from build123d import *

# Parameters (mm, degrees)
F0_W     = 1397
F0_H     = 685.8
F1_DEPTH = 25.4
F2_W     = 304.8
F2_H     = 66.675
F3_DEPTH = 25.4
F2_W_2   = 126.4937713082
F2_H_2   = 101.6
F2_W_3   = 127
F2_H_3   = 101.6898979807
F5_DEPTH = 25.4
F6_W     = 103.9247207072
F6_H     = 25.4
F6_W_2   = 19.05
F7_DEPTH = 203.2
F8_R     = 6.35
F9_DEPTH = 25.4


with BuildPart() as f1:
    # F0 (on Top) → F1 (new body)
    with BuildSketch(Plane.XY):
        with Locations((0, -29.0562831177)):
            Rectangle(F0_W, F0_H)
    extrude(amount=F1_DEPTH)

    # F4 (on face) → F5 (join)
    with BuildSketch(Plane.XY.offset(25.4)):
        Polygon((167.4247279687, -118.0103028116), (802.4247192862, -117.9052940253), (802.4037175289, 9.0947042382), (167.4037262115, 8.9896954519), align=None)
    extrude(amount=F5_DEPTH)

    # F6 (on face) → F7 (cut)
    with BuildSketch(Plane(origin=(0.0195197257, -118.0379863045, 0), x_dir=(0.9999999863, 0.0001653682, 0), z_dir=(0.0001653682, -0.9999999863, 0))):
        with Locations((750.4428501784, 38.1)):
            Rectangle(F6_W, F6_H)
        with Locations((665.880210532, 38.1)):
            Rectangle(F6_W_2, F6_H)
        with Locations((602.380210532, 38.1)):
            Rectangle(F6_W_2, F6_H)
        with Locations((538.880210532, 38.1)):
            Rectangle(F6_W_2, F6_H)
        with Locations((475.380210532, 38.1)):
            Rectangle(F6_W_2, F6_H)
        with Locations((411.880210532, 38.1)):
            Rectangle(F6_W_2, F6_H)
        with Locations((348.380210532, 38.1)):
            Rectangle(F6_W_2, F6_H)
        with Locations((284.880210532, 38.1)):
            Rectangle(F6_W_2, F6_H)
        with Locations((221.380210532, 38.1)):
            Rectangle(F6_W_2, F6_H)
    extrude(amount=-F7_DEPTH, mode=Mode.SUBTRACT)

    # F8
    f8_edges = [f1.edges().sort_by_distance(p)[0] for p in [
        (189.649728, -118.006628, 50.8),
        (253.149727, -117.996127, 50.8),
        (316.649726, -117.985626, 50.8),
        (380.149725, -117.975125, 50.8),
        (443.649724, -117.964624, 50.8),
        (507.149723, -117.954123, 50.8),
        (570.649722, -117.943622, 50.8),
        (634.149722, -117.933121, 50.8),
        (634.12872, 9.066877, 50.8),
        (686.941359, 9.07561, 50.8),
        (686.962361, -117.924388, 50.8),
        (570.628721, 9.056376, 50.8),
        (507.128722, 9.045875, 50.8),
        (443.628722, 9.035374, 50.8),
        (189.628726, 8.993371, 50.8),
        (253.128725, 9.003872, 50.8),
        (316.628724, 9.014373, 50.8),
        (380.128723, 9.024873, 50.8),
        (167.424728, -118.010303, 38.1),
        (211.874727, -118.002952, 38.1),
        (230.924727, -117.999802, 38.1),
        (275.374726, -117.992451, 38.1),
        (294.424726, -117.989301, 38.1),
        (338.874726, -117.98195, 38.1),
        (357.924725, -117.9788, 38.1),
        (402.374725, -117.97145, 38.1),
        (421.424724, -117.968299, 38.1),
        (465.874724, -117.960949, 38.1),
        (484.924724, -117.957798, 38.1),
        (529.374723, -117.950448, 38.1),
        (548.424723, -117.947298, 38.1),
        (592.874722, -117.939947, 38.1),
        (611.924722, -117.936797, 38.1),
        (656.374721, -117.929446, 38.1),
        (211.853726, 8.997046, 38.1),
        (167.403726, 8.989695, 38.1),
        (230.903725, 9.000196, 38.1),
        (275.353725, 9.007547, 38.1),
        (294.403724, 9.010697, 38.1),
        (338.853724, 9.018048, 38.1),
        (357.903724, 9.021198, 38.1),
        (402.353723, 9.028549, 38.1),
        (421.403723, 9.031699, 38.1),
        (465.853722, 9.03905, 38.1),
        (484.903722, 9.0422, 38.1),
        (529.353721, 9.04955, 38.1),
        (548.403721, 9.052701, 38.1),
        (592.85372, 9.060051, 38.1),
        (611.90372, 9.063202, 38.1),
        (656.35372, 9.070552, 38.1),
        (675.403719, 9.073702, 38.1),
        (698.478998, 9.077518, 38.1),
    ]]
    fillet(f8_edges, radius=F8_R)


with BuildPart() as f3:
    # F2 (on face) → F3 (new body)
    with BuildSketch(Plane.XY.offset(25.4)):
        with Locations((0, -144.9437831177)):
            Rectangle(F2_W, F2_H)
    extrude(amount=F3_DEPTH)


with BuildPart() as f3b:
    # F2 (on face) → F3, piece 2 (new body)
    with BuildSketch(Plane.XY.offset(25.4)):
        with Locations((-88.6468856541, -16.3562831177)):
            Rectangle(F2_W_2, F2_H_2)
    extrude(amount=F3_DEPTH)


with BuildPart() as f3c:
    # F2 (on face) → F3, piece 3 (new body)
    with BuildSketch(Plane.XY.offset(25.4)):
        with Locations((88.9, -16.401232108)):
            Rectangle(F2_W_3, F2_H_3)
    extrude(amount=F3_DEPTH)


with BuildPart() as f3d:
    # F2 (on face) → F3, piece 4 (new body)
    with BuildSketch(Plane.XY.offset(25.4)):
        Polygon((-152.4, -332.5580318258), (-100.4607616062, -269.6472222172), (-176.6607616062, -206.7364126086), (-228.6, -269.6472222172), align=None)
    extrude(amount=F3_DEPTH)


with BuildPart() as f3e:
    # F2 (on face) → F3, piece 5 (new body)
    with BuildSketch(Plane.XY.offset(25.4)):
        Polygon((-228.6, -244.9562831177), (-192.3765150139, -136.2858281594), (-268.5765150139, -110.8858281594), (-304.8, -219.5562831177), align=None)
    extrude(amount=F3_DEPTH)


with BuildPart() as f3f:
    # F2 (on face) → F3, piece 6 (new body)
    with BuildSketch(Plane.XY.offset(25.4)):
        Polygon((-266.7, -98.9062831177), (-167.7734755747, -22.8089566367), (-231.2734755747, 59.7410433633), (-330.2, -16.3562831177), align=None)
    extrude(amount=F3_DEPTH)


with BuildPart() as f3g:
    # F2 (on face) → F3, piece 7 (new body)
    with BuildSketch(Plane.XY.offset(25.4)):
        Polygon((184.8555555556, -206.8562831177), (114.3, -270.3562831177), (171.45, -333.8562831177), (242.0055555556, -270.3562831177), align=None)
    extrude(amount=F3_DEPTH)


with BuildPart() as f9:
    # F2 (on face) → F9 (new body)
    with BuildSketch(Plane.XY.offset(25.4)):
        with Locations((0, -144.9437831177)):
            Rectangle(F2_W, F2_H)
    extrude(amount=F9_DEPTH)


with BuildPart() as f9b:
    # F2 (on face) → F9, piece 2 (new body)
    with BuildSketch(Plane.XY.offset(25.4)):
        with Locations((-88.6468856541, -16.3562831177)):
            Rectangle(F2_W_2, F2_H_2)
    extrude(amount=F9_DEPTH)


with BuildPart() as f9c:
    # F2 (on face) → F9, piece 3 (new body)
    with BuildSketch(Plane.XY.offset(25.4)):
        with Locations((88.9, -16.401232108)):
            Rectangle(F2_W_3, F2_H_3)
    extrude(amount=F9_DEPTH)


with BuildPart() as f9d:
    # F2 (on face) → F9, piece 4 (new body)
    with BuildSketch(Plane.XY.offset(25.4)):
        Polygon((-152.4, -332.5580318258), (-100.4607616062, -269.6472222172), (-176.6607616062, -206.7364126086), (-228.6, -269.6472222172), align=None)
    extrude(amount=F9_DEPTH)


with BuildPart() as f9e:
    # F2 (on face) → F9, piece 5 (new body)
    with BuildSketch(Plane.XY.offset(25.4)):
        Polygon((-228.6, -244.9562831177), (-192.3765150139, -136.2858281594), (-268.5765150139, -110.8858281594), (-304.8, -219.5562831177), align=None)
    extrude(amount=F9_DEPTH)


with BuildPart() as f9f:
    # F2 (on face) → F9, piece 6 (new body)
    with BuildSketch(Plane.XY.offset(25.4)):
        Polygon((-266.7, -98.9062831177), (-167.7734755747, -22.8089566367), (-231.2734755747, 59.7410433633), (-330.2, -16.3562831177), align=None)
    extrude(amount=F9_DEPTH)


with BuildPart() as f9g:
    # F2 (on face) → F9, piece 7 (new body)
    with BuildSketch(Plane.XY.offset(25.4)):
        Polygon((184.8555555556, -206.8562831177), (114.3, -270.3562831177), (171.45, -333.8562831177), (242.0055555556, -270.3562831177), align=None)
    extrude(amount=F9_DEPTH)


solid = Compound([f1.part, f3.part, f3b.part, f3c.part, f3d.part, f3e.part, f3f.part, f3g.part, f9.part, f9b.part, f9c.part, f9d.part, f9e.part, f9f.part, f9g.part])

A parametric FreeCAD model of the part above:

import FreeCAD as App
import Part
import Sketcher

V = App.Vector
Q = App.Units.Quantity


def edges_at(feature, points):
    """Names of the edges that pass closest to the given points."""
    edges = feature.Shape.Edges
    near = lambda p: min(range(len(edges)), key=lambda i: edges[i].distToShape(Part.Vertex(*p))[0])
    return sorted({f"Edge{near(p) + 1}" for p in points})

doc = App.newDocument("Part")
body = doc.addObject("PartDesign::Body", "Body")

sketch1 = body.newObject("Sketcher::SketchObject", "Sketch")
sketch1.AttachmentSupport = (doc.getObject("XY_Plane"), [""])
sketch1.MapMode = "FlatFace"
sketch1.addGeometry(Part.LineSegment(V(-698.5, 313.843717, 0), V(-698.5, -371.956283, 0)), False)
sketch1.addGeometry(Part.LineSegment(V(-698.5, -371.956283, 0), V(698.5, -371.956283, 0)), False)
sketch1.addGeometry(Part.LineSegment(V(698.5, -371.956283, 0), V(698.5, 313.843717, 0)), False)
sketch1.addGeometry(Part.LineSegment(V(698.5, 313.843717, 0), V(-698.5, 313.843717, 0)), False)
sketch1.addConstraint(Sketcher.Constraint("Coincident", 0, 2, 1, 1))
sketch1.addConstraint(Sketcher.Constraint("Coincident", 1, 2, 2, 1))
sketch1.addConstraint(Sketcher.Constraint("Coincident", 2, 2, 3, 1))
sketch1.addConstraint(Sketcher.Constraint("Coincident", 3, 2, 0, 1))
sketch1.addConstraint(Sketcher.Constraint("Vertical", 0))
sketch1.addConstraint(Sketcher.Constraint("Horizontal", 1))
sketch1.addConstraint(Sketcher.Constraint("Vertical", 2))
sketch1.addConstraint(Sketcher.Constraint("Horizontal", 3))
sketch1.addConstraint(Sketcher.Constraint("DistanceX", 1, 1, 1, 2, Q("55 in")))
sketch1.addConstraint(Sketcher.Constraint("DistanceY", 0, 2, 0, 1, Q("27 in")))
sketch1.addConstraint(Sketcher.Constraint("DistanceX", 0, 2, -1, 1, Q("27.5 in")))
sketch1.addConstraint(Sketcher.Constraint("DistanceY", 0, 2, -1, 1, Q("371.956283 mm")))
pad1 = body.newObject("PartDesign::Pad", "Pad")
pad1.Profile = sketch1
pad1.Length = Q("1 in")

sketch2 = body.newObject("Sketcher::SketchObject", "Sketch001")
sketch2.AttachmentSupport = (doc.getObject("XY_Plane"), [""])
sketch2.MapMode = "FlatFace"
sketch2.AttachmentOffset = App.Placement(V(0, 0, 1 * 25.4), App.Rotation())
sketch2.addGeometry(Part.LineSegment(V(167.424728, -118.010303, 0), V(802.424719, -117.905294, 0)), False)
sketch2.addGeometry(Part.LineSegment(V(802.424719, -117.905294, 0), V(802.403718, 9.094704, 0)), False)
sketch2.addGeometry(Part.LineSegment(V(802.403718, 9.094704, 0), V(167.403726, 8.989695, 0)), False)
sketch2.addGeometry(Part.LineSegment(V(167.403726, 8.989695, 0), V(167.424728, -118.010303, 0)), False)
sketch2.addConstraint(Sketcher.Constraint("Coincident", 0, 2, 1, 1))
sketch2.addConstraint(Sketcher.Constraint("Coincident", 1, 2, 2, 1))
sketch2.addConstraint(Sketcher.Constraint("Coincident", 2, 2, 3, 1))
sketch2.addConstraint(Sketcher.Constraint("Coincident", 3, 2, 0, 1))
sketch2.addConstraint(Sketcher.Constraint("Perpendicular", 0, 1))
sketch2.addConstraint(Sketcher.Constraint("Perpendicular", 1, 2))
sketch2.addConstraint(Sketcher.Constraint("Perpendicular", 2, 3))
sketch2.addConstraint(Sketcher.Constraint("Distance", 0, Q("25 in")))
sketch2.addConstraint(Sketcher.Constraint("Distance", 1, Q("5 in")))
sketch2.addConstraint(Sketcher.Constraint("DistanceX", 1, 2, 0, 2, Q("0.021002 mm")))
sketch2.addConstraint(Sketcher.Constraint("DistanceX", -1, 1, 0, 2, Q("802.424719 mm")))
sketch2.addConstraint(Sketcher.Constraint("DistanceY", 0, 2, -1, 1, Q("117.905294 mm")))
pad2 = body.newObject("PartDesign::Pad", "Pad001")
pad2.Profile = sketch2
pad2.Length = Q("1 in")

sketch3 = body.newObject("Sketcher::SketchObject", "Sketch002")
sketch3.Placement = App.Placement(V(0.01952, -118.037986, 0), App.Rotation(V(0.999999986, 0.000165368, 0), V(0, 0, 0.999999999), V(0.000165368, -0.999999986, 0), "ZXY"))
sketch3.addGeometry(Part.LineSegment(V(698.480489, 50.8, 0), V(698.480489, 25.4, 0)), False)
sketch3.addGeometry(Part.LineSegment(V(698.480489, 25.4, 0), V(802.40521, 25.4, 0)), False)
sketch3.addGeometry(Part.LineSegment(V(802.40521, 25.4, 0), V(802.40521, 50.8, 0)), False)
sketch3.addGeometry(Part.LineSegment(V(802.40521, 50.8, 0), V(698.480489, 50.8, 0)), False)
sketch3.addGeometry(Part.LineSegment(V(656.35521, 50.8, 0), V(656.35521, 25.4, 0)), False)
sketch3.addGeometry(Part.LineSegment(V(656.35521, 25.4, 0), V(675.40521, 25.4, 0)), False)
sketch3.addGeometry(Part.LineSegment(V(675.40521, 25.4, 0), V(675.40521, 50.8, 0)), False)
sketch3.addGeometry(Part.LineSegment(V(675.40521, 50.8, 0), V(656.35521, 50.8, 0)), False)
sketch3.addGeometry(Part.LineSegment(V(592.85521, 50.8, 0), V(592.85521, 25.4, 0)), False)
sketch3.addGeometry(Part.LineSegment(V(592.85521, 25.4, 0), V(611.90521, 25.4, 0)), False)
sketch3.addGeometry(Part.LineSegment(V(611.90521, 25.4, 0), V(611.90521, 50.8, 0)), False)
sketch3.addGeometry(Part.LineSegment(V(611.90521, 50.8, 0), V(592.85521, 50.8, 0)), False)
sketch3.addGeometry(Part.LineSegment(V(529.35521, 50.8, 0), V(529.35521, 25.4, 0)), False)
sketch3.addGeometry(Part.LineSegment(V(529.35521, 25.4, 0), V(548.40521, 25.4, 0)), False)
sketch3.addGeometry(Part.LineSegment(V(548.40521, 25.4, 0), V(548.40521, 50.8, 0)), False)
sketch3.addGeometry(Part.LineSegment(V(548.40521, 50.8, 0), V(529.35521, 50.8, 0)), False)
sketch3.addGeometry(Part.LineSegment(V(465.85521, 50.8, 0), V(465.85521, 25.4, 0)), False)
sketch3.addGeometry(Part.LineSegment(V(465.85521, 25.4, 0), V(484.90521, 25.4, 0)), False)
sketch3.addGeometry(Part.LineSegment(V(484.90521, 25.4, 0), V(484.90521, 50.8, 0)), False)
sketch3.addGeometry(Part.LineSegment(V(484.90521, 50.8, 0), V(465.85521, 50.8, 0)), False)
sketch3.addGeometry(Part.LineSegment(V(402.35521, 50.8, 0), V(402.35521, 25.4, 0)), False)
sketch3.addGeometry(Part.LineSegment(V(402.35521, 25.4, 0), V(421.40521, 25.4, 0)), False)
sketch3.addGeometry(Part.LineSegment(V(421.40521, 25.4, 0), V(421.40521, 50.8, 0)), False)
sketch3.addGeometry(Part.LineSegment(V(421.40521, 50.8, 0), V(402.35521, 50.8, 0)), False)
sketch3.addGeometry(Part.LineSegment(V(338.85521, 50.8, 0), V(338.85521, 25.4, 0)), False)
sketch3.addGeometry(Part.LineSegment(V(338.85521, 25.4, 0), V(357.90521, 25.4, 0)), False)
sketch3.addGeometry(Part.LineSegment(V(357.90521, 25.4, 0), V(357.90521, 50.8, 0)), False)
sketch3.addGeometry(Part.LineSegment(V(357.90521, 50.8, 0), V(338.85521, 50.8, 0)), False)
sketch3.addGeometry(Part.LineSegment(V(275.35521, 50.8, 0), V(275.35521, 25.4, 0)), False)
sketch3.addGeometry(Part.LineSegment(V(275.35521, 25.4, 0), V(294.40521, 25.4, 0)), False)
sketch3.addGeometry(Part.LineSegment(V(294.40521, 25.4, 0), V(294.40521, 50.8, 0)), False)
sketch3.addGeometry(Part.LineSegment(V(294.40521, 50.8, 0), V(275.35521, 50.8, 0)), False)
sketch3.addGeometry(Part.LineSegment(V(211.85521, 50.8, 0), V(211.85521, 25.4, 0)), False)
sketch3.addGeometry(Part.LineSegment(V(211.85521, 25.4, 0), V(230.90521, 25.4, 0)), False)
sketch3.addGeometry(Part.LineSegment(V(230.90521, 25.4, 0), V(230.90521, 50.8, 0)), False)
sketch3.addGeometry(Part.LineSegment(V(230.90521, 50.8, 0), V(211.85521, 50.8, 0)), False)
sketch3.addConstraint(Sketcher.Constraint("Coincident", 0, 2, 1, 1))
sketch3.addConstraint(Sketcher.Constraint("Coincident", 1, 2, 2, 1))
sketch3.addConstraint(Sketcher.Constraint("Coincident", 2, 2, 3, 1))
sketch3.addConstraint(Sketcher.Constraint("Coincident", 3, 2, 0, 1))
sketch3.addConstraint(Sketcher.Constraint("Coincident", 4, 2, 5, 1))
sketch3.addConstraint(Sketcher.Constraint("Coincident", 5, 2, 6, 1))
sketch3.addConstraint(Sketcher.Constraint("Coincident", 6, 2, 7, 1))
sketch3.addConstraint(Sketcher.Constraint("Coincident", 7, 2, 4, 1))
sketch3.addConstraint(Sketcher.Constraint("Coincident", 8, 2, 9, 1))
sketch3.addConstraint(Sketcher.Constraint("Coincident", 9, 2, 10, 1))
sketch3.addConstraint(Sketcher.Constraint("Coincident", 10, 2, 11, 1))
sketch3.addConstraint(Sketcher.Constraint("Coincident", 11, 2, 8, 1))
sketch3.addConstraint(Sketcher.Constraint("Coincident", 12, 2, 13, 1))
sketch3.addConstraint(Sketcher.Constraint("Coincident", 13, 2, 14, 1))
sketch3.addConstraint(Sketcher.Constraint("Coincident", 14, 2, 15, 1))
sketch3.addConstraint(Sketcher.Constraint("Coincident", 15, 2, 12, 1))
sketch3.addConstraint(Sketcher.Constraint("Coincident", 16, 2, 17, 1))
sketch3.addConstraint(Sketcher.Constraint("Coincident", 17, 2, 18, 1))
sketch3.addConstraint(Sketcher.Constraint("Coincident", 18, 2, 19, 1))
sketch3.addConstraint(Sketcher.Constraint("Coincident", 19, 2, 16, 1))
sketch3.addConstraint(Sketcher.Constraint("Coincident", 20, 2, 21, 1))
sketch3.addConstraint(Sketcher.Constraint("Coincident", 21, 2, 22, 1))
sketch3.addConstraint(Sketcher.Constraint("Coincident", 22, 2, 23, 1))
sketch3.addConstraint(Sketcher.Constraint("Coincident", 23, 2, 20, 1))
sketch3.addConstraint(Sketcher.Constraint("Coincident", 24, 2, 25, 1))
sketch3.addConstraint(Sketcher.Constraint("Coincident", 25, 2, 26, 1))
sketch3.addConstraint(Sketcher.Constraint("Coincident", 26, 2, 27, 1))
sketch3.addConstraint(Sketcher.Constraint("Coincident", 27, 2, 24, 1))
sketch3.addConstraint(Sketcher.Constraint("Coincident", 28, 2, 29, 1))
sketch3.addConstraint(Sketcher.Constraint("Coincident", 29, 2, 30, 1))
sketch3.addConstraint(Sketcher.Constraint("Coincident", 30, 2, 31, 1))
sketch3.addConstraint(Sketcher.Constraint("Coincident", 31, 2, 28, 1))
sketch3.addConstraint(Sketcher.Constraint("Coincident", 32, 2, 33, 1))
sketch3.addConstraint(Sketcher.Constraint("Coincident", 33, 2, 34, 1))
sketch3.addConstraint(Sketcher.Constraint("Coincident", 34, 2, 35, 1))
sketch3.addConstraint(Sketcher.Constraint("Coincident", 35, 2, 32, 1))
sketch3.addConstraint(Sketcher.Constraint("Vertical", 0))
sketch3.addConstraint(Sketcher.Constraint("Horizontal", 1))
sketch3.addConstraint(Sketcher.Constraint("Vertical", 2))
sketch3.addConstraint(Sketcher.Constraint("Horizontal", 3))
sketch3.addConstraint(Sketcher.Constraint("Vertical", 4))
sketch3.addConstraint(Sketcher.Constraint("Horizontal", 5))
sketch3.addConstraint(Sketcher.Constraint("Vertical", 6))
sketch3.addConstraint(Sketcher.Constraint("Horizontal", 7))
sketch3.addConstraint(Sketcher.Constraint("Vertical", 8))
sketch3.addConstraint(Sketcher.Constraint("Horizontal", 9))
sketch3.addConstraint(Sketcher.Constraint("Vertical", 10))
sketch3.addConstraint(Sketcher.Constraint("Horizontal", 11))
sketch3.addConstraint(Sketcher.Constraint("Vertical", 12))
sketch3.addConstraint(Sketcher.Constraint("Horizontal", 13))
sketch3.addConstraint(Sketcher.Constraint("Vertical", 14))
sketch3.addConstraint(Sketcher.Constraint("Horizontal", 15))
sketch3.addConstraint(Sketcher.Constraint("Vertical", 16))
sketch3.addConstraint(Sketcher.Constraint("Horizontal", 17))
sketch3.addConstraint(Sketcher.Constraint("Vertical", 18))
sketch3.addConstraint(Sketcher.Constraint("Horizontal", 19))
sketch3.addConstraint(Sketcher.Constraint("Vertical", 20))
sketch3.addConstraint(Sketcher.Constraint("Horizontal", 21))
sketch3.addConstraint(Sketcher.Constraint("Vertical", 22))
sketch3.addConstraint(Sketcher.Constraint("Horizontal", 23))
sketch3.addConstraint(Sketcher.Constraint("Vertical", 24))
sketch3.addConstraint(Sketcher.Constraint("Horizontal", 25))
sketch3.addConstraint(Sketcher.Constraint("Vertical", 26))
sketch3.addConstraint(Sketcher.Constraint("Horizontal", 27))
sketch3.addConstraint(Sketcher.Constraint("Vertical", 28))
sketch3.addConstraint(Sketcher.Constraint("Horizontal", 29))
sketch3.addConstraint(Sketcher.Constraint("Vertical", 30))
sketch3.addConstraint(Sketcher.Constraint("Horizontal", 31))
sketch3.addConstraint(Sketcher.Constraint("Vertical", 32))
sketch3.addConstraint(Sketcher.Constraint("Horizontal", 33))
sketch3.addConstraint(Sketcher.Constraint("Vertical", 34))
sketch3.addConstraint(Sketcher.Constraint("Horizontal", 35))
sketch3.addConstraint(Sketcher.Constraint("Horizontal", 1, 2, 4, 2))
sketch3.addConstraint(Sketcher.Constraint("Horizontal", 3, 2, 6, 2))
sketch3.addConstraint(Sketcher.Constraint("Horizontal", 5, 2, 8, 2))
sketch3.addConstraint(Sketcher.Constraint("Horizontal", 7, 2, 10, 2))
sketch3.addConstraint(Sketcher.Constraint("Horizontal", 9, 2, 12, 2))
sketch3.addConstraint(Sketcher.Constraint("Horizontal", 11, 2, 14, 2))
sketch3.addConstraint(Sketcher.Constraint("Horizontal", 13, 2, 16, 2))
sketch3.addConstraint(Sketcher.Constraint("Horizontal", 15, 2, 18, 2))
sketch3.addConstraint(Sketcher.Constraint("Horizontal", 17, 2, 20, 2))
sketch3.addConstraint(Sketcher.Constraint("Horizontal", 19, 2, 22, 2))
sketch3.addConstraint(Sketcher.Constraint("Horizontal", 21, 2, 24, 2))
sketch3.addConstraint(Sketcher.Constraint("Horizontal", 23, 2, 26, 2))
sketch3.addConstraint(Sketcher.Constraint("Horizontal", 25, 2, 28, 2))
sketch3.addConstraint(Sketcher.Constraint("Horizontal", 27, 2, 30, 2))
sketch3.addConstraint(Sketcher.Constraint("Horizontal", 29, 2, 32, 2))
sketch3.addConstraint(Sketcher.Constraint("Horizontal", 31, 2, 34, 2))
sketch3.addConstraint(Sketcher.Constraint("Equal", 7, 9))
sketch3.addConstraint(Sketcher.Constraint("Equal", 11, 13))
sketch3.addConstraint(Sketcher.Constraint("Equal", 15, 17))
sketch3.addConstraint(Sketcher.Constraint("Equal", 19, 21))
sketch3.addConstraint(Sketcher.Constraint("Equal", 23, 25))
sketch3.addConstraint(Sketcher.Constraint("Equal", 27, 29))
sketch3.addConstraint(Sketcher.Constraint("Equal", 31, 33))
sketch3.addConstraint(Sketcher.Constraint("DistanceY", 0, 2, 0, 1, Q("1 in")))
sketch3.addConstraint(Sketcher.Constraint("DistanceY", -1, 1, 0, 2, Q("1 in")))
sketch3.addConstraint(Sketcher.Constraint("DistanceX", 5, 2, 1, 2, Q("5 in")))
sketch3.addConstraint(Sketcher.Constraint("DistanceX", 12, 2, 4, 2, Q("5 in")))
sketch3.addConstraint(Sketcher.Constraint("DistanceX", 16, 2, 8, 2, Q("5 in")))
sketch3.addConstraint(Sketcher.Constraint("DistanceX", 20, 2, 12, 2, Q("5 in")))
sketch3.addConstraint(Sketcher.Constraint("DistanceX", 24, 2, 16, 2, Q("5 in")))
sketch3.addConstraint(Sketcher.Constraint("DistanceX", 28, 2, 20, 2, Q("5 in")))
sketch3.addConstraint(Sketcher.Constraint("DistanceX", 32, 2, 24, 2, Q("5 in")))
sketch3.addConstraint(Sketcher.Constraint("DistanceX", 5, 1, 5, 2, Q("0.75 in")))
sketch3.addConstraint(Sketcher.Constraint("DistanceX", 8, 2, 4, 2, Q("2.5 in")))
sketch3.addConstraint(Sketcher.Constraint("DistanceX", 1, 1, 1, 2, Q("103.924721 mm")))
sketch3.addConstraint(Sketcher.Constraint("DistanceX", -1, 1, 0, 2, Q("698.480489 mm")))
pocket1 = body.newObject("PartDesign::Pocket", "Pocket")
pocket1.Profile = sketch3
pocket1.Length = Q("8 in")
doc.recompute()

fillet = body.newObject("PartDesign::Fillet", "Fillet")
fillet.Base = (pocket1, edges_at(pocket1, [
    (189.65, -118.007, 50.8),
    (253.15, -117.996, 50.8),
    (316.65, -117.986, 50.8),
    (380.15, -117.975, 50.8),
    (443.65, -117.965, 50.8),
    (507.15, -117.954, 50.8),
    (570.65, -117.944, 50.8),
    (634.15, -117.933, 50.8),
    (634.129, 9.067, 50.8),
    (686.941, 9.076, 50.8),
    (686.962, -117.924, 50.8),
    (570.629, 9.056, 50.8),
    (507.129, 9.046, 50.8),
    (443.629, 9.035, 50.8),
    (189.629, 8.993, 50.8),
    (253.129, 9.004, 50.8),
    (316.629, 9.014, 50.8),
    (380.129, 9.025, 50.8),
    (167.425, -118.01, 38.1),
    (211.875, -118.003, 38.1),
    (230.925, -118, 38.1),
    (275.375, -117.992, 38.1),
    (294.425, -117.989, 38.1),
    (338.875, -117.982, 38.1),
    (357.925, -117.979, 38.1),
    (402.375, -117.971, 38.1),
    (421.425, -117.968, 38.1),
    (465.875, -117.961, 38.1),
    (484.925, -117.958, 38.1),
    (529.375, -117.95, 38.1),
    (548.425, -117.947, 38.1),
    (592.875, -117.94, 38.1),
    (611.925, -117.937, 38.1),
    (656.375, -117.929, 38.1),
    (211.854, 8.997, 38.1),
    (167.404, 8.99, 38.1),
    (230.904, 9, 38.1),
    (275.354, 9.008, 38.1),
    (294.404, 9.011, 38.1),
    (338.854, 9.018, 38.1),
    (357.904, 9.021, 38.1),
    (402.354, 9.029, 38.1),
    (421.404, 9.032, 38.1),
    (465.854, 9.039, 38.1),
    (484.904, 9.042, 38.1),
    (529.354, 9.05, 38.1),
    (548.404, 9.053, 38.1),
    (592.854, 9.06, 38.1),
    (611.904, 9.063, 38.1),
    (656.354, 9.071, 38.1),
    (675.404, 9.074, 38.1),
    (698.479, 9.078, 38.1),
]))
fillet.Radius = Q("0.25 in")
body2 = doc.addObject("PartDesign::Body", "Body001")

sketch4 = body2.newObject("Sketcher::SketchObject", "Sketch003")
sketch4.AttachmentSupport = (doc.getObject("XY_Plane001"), [""])
sketch4.MapMode = "FlatFace"
sketch4.AttachmentOffset = App.Placement(V(0, 0, 1 * 25.4), App.Rotation())
sketch4.addGeometry(Part.LineSegment(V(-152.4, -111.606283, 0), V(-152.4, -178.281283, 0)), False)
sketch4.addGeometry(Part.LineSegment(V(-152.4, -178.281283, 0), V(152.4, -178.281283, 0)), False)
sketch4.addGeometry(Part.LineSegment(V(152.4, -178.281283, 0), V(152.4, -111.606283, 0)), False)
sketch4.addGeometry(Part.LineSegment(V(152.4, -111.606283, 0), V(-152.4, -111.606283, 0)), False)
sketch4.addConstraint(Sketcher.Constraint("Coincident", 0, 2, 1, 1))
sketch4.addConstraint(Sketcher.Constraint("Coincident", 1, 2, 2, 1))
sketch4.addConstraint(Sketcher.Constraint("Coincident", 2, 2, 3, 1))
sketch4.addConstraint(Sketcher.Constraint("Coincident", 3, 2, 0, 1))
sketch4.addConstraint(Sketcher.Constraint("Vertical", 0))
sketch4.addConstraint(Sketcher.Constraint("Horizontal", 1))
sketch4.addConstraint(Sketcher.Constraint("Vertical", 2))
sketch4.addConstraint(Sketcher.Constraint("Horizontal", 3))
sketch4.addConstraint(Sketcher.Constraint("DistanceX", 1, 1, 1, 2, Q("12 in")))
sketch4.addConstraint(Sketcher.Constraint("DistanceX", 0, 2, -1, 1, Q("6 in")))
sketch4.addConstraint(Sketcher.Constraint("DistanceY", 0, 2, 0, 1, Q("2.625 in")))
sketch4.addConstraint(Sketcher.Constraint("DistanceY", 0, 2, -1, 1, Q("178.281283 mm")))
pad3 = body2.newObject("PartDesign::Pad", "Pad002")
pad3.Profile = sketch4
pad3.Length = Q("1 in")
body3 = doc.addObject("PartDesign::Body", "Body002")

sketch5 = body3.newObject("Sketcher::SketchObject", "Sketch004")
sketch5.AttachmentSupport = (doc.getObject("XY_Plane002"), [""])
sketch5.MapMode = "FlatFace"
sketch5.AttachmentOffset = App.Placement(V(0, 0, 1 * 25.4), App.Rotation())
sketch5.addGeometry(Part.LineSegment(V(-151.893771, 34.443717, 0), V(-151.893771, -67.156283, 0)), False)
sketch5.addGeometry(Part.LineSegment(V(-151.893771, -67.156283, 0), V(-25.4, -67.156283, 0)), False)
sketch5.addGeometry(Part.LineSegment(V(-25.4, -67.156283, 0), V(-25.4, 34.443717, 0)), False)
sketch5.addGeometry(Part.LineSegment(V(-25.4, 34.443717, 0), V(-151.893771, 34.443717, 0)), False)
sketch5.addConstraint(Sketcher.Constraint("Coincident", 0, 2, 1, 1))
sketch5.addConstraint(Sketcher.Constraint("Coincident", 1, 2, 2, 1))
sketch5.addConstraint(Sketcher.Constraint("Coincident", 2, 2, 3, 1))
sketch5.addConstraint(Sketcher.Constraint("Coincident", 3, 2, 0, 1))
sketch5.addConstraint(Sketcher.Constraint("Vertical", 0))
sketch5.addConstraint(Sketcher.Constraint("Horizontal", 1))
sketch5.addConstraint(Sketcher.Constraint("Vertical", 2))
sketch5.addConstraint(Sketcher.Constraint("Horizontal", 3))
sketch5.addConstraint(Sketcher.Constraint("DistanceY", 0, 2, 0, 1, Q("4 in")))
sketch5.addConstraint(Sketcher.Constraint("DistanceX", 1, 2, -1, 1, Q("1 in")))
sketch5.addConstraint(Sketcher.Constraint("DistanceX", 1, 1, 1, 2, Q("126.493771 mm")))
sketch5.addConstraint(Sketcher.Constraint("DistanceY", 0, 2, -1, 1, Q("67.156283 mm")))
pad4 = body3.newObject("PartDesign::Pad", "Pad003")
pad4.Profile = sketch5
pad4.Length = Q("1 in")
body4 = doc.addObject("PartDesign::Body", "Body003")

sketch6 = body4.newObject("Sketcher::SketchObject", "Sketch005")
sketch6.AttachmentSupport = (doc.getObject("XY_Plane003"), [""])
sketch6.MapMode = "FlatFace"
sketch6.AttachmentOffset = App.Placement(V(0, 0, 1 * 25.4), App.Rotation())
sketch6.addGeometry(Part.LineSegment(V(25.4, 34.443717, 0), V(25.4, -67.246181, 0)), False)
sketch6.addGeometry(Part.LineSegment(V(25.4, -67.246181, 0), V(152.4, -67.246181, 0)), False)
sketch6.addGeometry(Part.LineSegment(V(152.4, -67.246181, 0), V(152.4, 34.443717, 0)), False)
sketch6.addGeometry(Part.LineSegment(V(152.4, 34.443717, 0), V(25.4, 34.443717, 0)), False)
sketch6.addConstraint(Sketcher.Constraint("Coincident", 0, 2, 1, 1))
sketch6.addConstraint(Sketcher.Constraint("Coincident", 1, 2, 2, 1))
sketch6.addConstraint(Sketcher.Constraint("Coincident", 2, 2, 3, 1))
sketch6.addConstraint(Sketcher.Constraint("Coincident", 3, 2, 0, 1))
sketch6.addConstraint(Sketcher.Constraint("Vertical", 0))
sketch6.addConstraint(Sketcher.Constraint("Horizontal", 1))
sketch6.addConstraint(Sketcher.Constraint("Vertical", 2))
sketch6.addConstraint(Sketcher.Constraint("Horizontal", 3))
sketch6.addConstraint(Sketcher.Constraint("DistanceX", 1, 1, 1, 2, Q("5 in")))
sketch6.addConstraint(Sketcher.Constraint("DistanceX", -1, 1, 0, 2, Q("1 in")))
sketch6.addConstraint(Sketcher.Constraint("DistanceY", 0, 2, 0, 1, Q("101.689898 mm")))
sketch6.addConstraint(Sketcher.Constraint("DistanceY", 0, 2, -1, 1, Q("67.246181 mm")))
pad5 = body4.newObject("PartDesign::Pad", "Pad004")
pad5.Profile = sketch6
pad5.Length = Q("1 in")
body5 = doc.addObject("PartDesign::Body", "Body004")

sketch7 = body5.newObject("Sketcher::SketchObject", "Sketch006")
sketch7.AttachmentSupport = (doc.getObject("XY_Plane004"), [""])
sketch7.MapMode = "FlatFace"
sketch7.AttachmentOffset = App.Placement(V(0, 0, 1 * 25.4), App.Rotation())
sketch7.addGeometry(Part.LineSegment(V(-152.4, -332.558032, 0), V(-100.460762, -269.647222, 0)), False)
sketch7.addGeometry(Part.LineSegment(V(-100.460762, -269.647222, 0), V(-176.660762, -206.736413, 0)), False)
sketch7.addGeometry(Part.LineSegment(V(-176.660762, -206.736413, 0), V(-228.6, -269.647222, 0)), False)
sketch7.addGeometry(Part.LineSegment(V(-228.6, -269.647222, 0), V(-152.4, -332.558032, 0)), False)
sketch7.addConstraint(Sketcher.Constraint("Coincident", 0, 2, 1, 1))
sketch7.addConstraint(Sketcher.Constraint("Coincident", 1, 2, 2, 1))
sketch7.addConstraint(Sketcher.Constraint("Coincident", 2, 2, 3, 1))
sketch7.addConstraint(Sketcher.Constraint("Coincident", 3, 2, 0, 1))
sketch7.addConstraint(Sketcher.Constraint("Perpendicular", 0, 1))
sketch7.addConstraint(Sketcher.Constraint("Perpendicular", 1, 2))
sketch7.addConstraint(Sketcher.Constraint("Perpendicular", 2, 3))
sketch7.addConstraint(Sketcher.Constraint("Horizontal", 0, 2, 2, 2))
sketch7.addConstraint(Sketcher.Constraint("DistanceX", 2, 2, -1, 1, Q("9 in")))
sketch7.addConstraint(Sketcher.Constraint("DistanceX", 3, 2, -1, 1, Q("6 in")))
sketch7.addConstraint(Sketcher.Constraint("Distance", 0, Q("81.580969 mm")))
sketch7.addConstraint(Sketcher.Constraint("DistanceY", 3, 2, -1, 1, Q("332.558032 mm")))
pad6 = body5.newObject("PartDesign::Pad", "Pad005")
pad6.Profile = sketch7
pad6.Length = Q("1 in")
body6 = doc.addObject("PartDesign::Body", "Body005")

sketch8 = body6.newObject("Sketcher::SketchObject", "Sketch007")
sketch8.AttachmentSupport = (doc.getObject("XY_Plane005"), [""])
sketch8.MapMode = "FlatFace"
sketch8.AttachmentOffset = App.Placement(V(0, 0, 1 * 25.4), App.Rotation())
sketch8.addGeometry(Part.LineSegment(V(-228.6, -244.956283, 0), V(-192.376515, -136.285828, 0)), False)
sketch8.addGeometry(Part.LineSegment(V(-192.376515, -136.285828, 0), V(-268.576515, -110.885828, 0)), False)
sketch8.addGeometry(Part.LineSegment(V(-268.576515, -110.885828, 0), V(-304.8, -219.556283, 0)), False)
sketch8.addGeometry(Part.LineSegment(V(-304.8, -219.556283, 0), V(-228.6, -244.956283, 0)), False)
sketch8.addConstraint(Sketcher.Constraint("Coincident", 0, 2, 1, 1))
sketch8.addConstraint(Sketcher.Constraint("Coincident", 1, 2, 2, 1))
sketch8.addConstraint(Sketcher.Constraint("Coincident", 2, 2, 3, 1))
sketch8.addConstraint(Sketcher.Constraint("Coincident", 3, 2, 0, 1))
sketch8.addConstraint(Sketcher.Constraint("Perpendicular", 0, 1))
sketch8.addConstraint(Sketcher.Constraint("Perpendicular", 1, 2))
sketch8.addConstraint(Sketcher.Constraint("Perpendicular", 2, 3))
sketch8.addConstraint(Sketcher.Constraint("DistanceX", 2, 2, -1, 1, Q("12 in")))
sketch8.addConstraint(Sketcher.Constraint("DistanceX", 3, 2, -1, 1, Q("9 in")))
sketch8.addConstraint(Sketcher.Constraint("DistanceY", 0, 2, 1, 2, Q("1 in")))
sketch8.addConstraint(Sketcher.Constraint("DistanceY", 0, 2, -1, 1, Q("136.285828 mm")))
sketch8.addConstraint(Sketcher.Constraint("Distance", 0, Q("114.548717 mm")))
pad7 = body6.newObject("PartDesign::Pad", "Pad006")
pad7.Profile = sketch8
pad7.Length = Q("1 in")
body7 = doc.addObject("PartDesign::Body", "Body006")

sketch9 = body7.newObject("Sketcher::SketchObject", "Sketch008")
sketch9.AttachmentSupport = (doc.getObject("XY_Plane006"), [""])
sketch9.MapMode = "FlatFace"
sketch9.AttachmentOffset = App.Placement(V(0, 0, 1 * 25.4), App.Rotation())
sketch9.addGeometry(Part.LineSegment(V(-266.7, -98.906283, 0), V(-167.773476, -22.808957, 0)), False)
sketch9.addGeometry(Part.LineSegment(V(-167.773476, -22.808957, 0), V(-231.273476, 59.741043, 0)), False)
sketch9.addGeometry(Part.LineSegment(V(-231.273476, 59.741043, 0), V(-330.2, -16.356283, 0)), False)
sketch9.addGeometry(Part.LineSegment(V(-330.2, -16.356283, 0), V(-266.7, -98.906283, 0)), False)
sketch9.addConstraint(Sketcher.Constraint("Coincident", 0, 2, 1, 1))
sketch9.addConstraint(Sketcher.Constraint("Coincident", 1, 2, 2, 1))
sketch9.addConstraint(Sketcher.Constraint("Coincident", 2, 2, 3, 1))
sketch9.addConstraint(Sketcher.Constraint("Coincident", 3, 2, 0, 1))
sketch9.addConstraint(Sketcher.Constraint("Perpendicular", 0, 1))
sketch9.addConstraint(Sketcher.Constraint("Perpendicular", 1, 2))
sketch9.addConstraint(Sketcher.Constraint("Perpendicular", 2, 3))
sketch9.addConstraint(Sketcher.Constraint("DistanceX", 2, 2, -1, 1, Q("13 in")))
sketch9.addConstraint(Sketcher.Constraint("DistanceX", 3, 2, -1, 1, Q("10.5 in")))
sketch9.addConstraint(Sketcher.Constraint("DistanceY", 0, 2, 1, 2, Q("3.25 in")))
sketch9.addConstraint(Sketcher.Constraint("Distance", 0, Q("124.808895 mm")))
sketch9.addConstraint(Sketcher.Constraint("DistanceY", 0, 2, -1, 1, Q("22.808957 mm")))
pad8 = body7.newObject("PartDesign::Pad", "Pad007")
pad8.Profile = sketch9
pad8.Length = Q("1 in")
body8 = doc.addObject("PartDesign::Body", "Body007")

sketch10 = body8.newObject("Sketcher::SketchObject", "Sketch009")
sketch10.AttachmentSupport = (doc.getObject("XY_Plane007"), [""])
sketch10.MapMode = "FlatFace"
sketch10.AttachmentOffset = App.Placement(V(0, 0, 1 * 25.4), App.Rotation())
sketch10.addGeometry(Part.LineSegment(V(184.855556, -206.856283, 0), V(114.3, -270.356283, 0)), False)
sketch10.addGeometry(Part.LineSegment(V(114.3, -270.356283, 0), V(171.45, -333.856283, 0)), False)
sketch10.addGeometry(Part.LineSegment(V(171.45, -333.856283, 0), V(242.005556, -270.356283, 0)), False)
sketch10.addGeometry(Part.LineSegment(V(242.005556, -270.356283, 0), V(184.855556, -206.856283, 0)), False)
sketch10.addConstraint(Sketcher.Constraint("Coincident", 0, 2, 1, 1))
sketch10.addConstraint(Sketcher.Constraint("Coincident", 1, 2, 2, 1))
sketch10.addConstraint(Sketcher.Constraint("Coincident", 2, 2, 3, 1))
sketch10.addConstraint(Sketcher.Constraint("Coincident", 3, 2, 0, 1))
sketch10.addConstraint(Sketcher.Constraint("Perpendicular", 0, 1))
sketch10.addConstraint(Sketcher.Constraint("Perpendicular", 1, 2))
sketch10.addConstraint(Sketcher.Constraint("Perpendicular", 2, 3))
sketch10.addConstraint(Sketcher.Constraint("Horizontal", 0, 2, 2, 2))
sketch10.addConstraint(Sketcher.Constraint("DistanceY", 1, 2, 3, 2, Q("5 in")))
sketch10.addConstraint(Sketcher.Constraint("DistanceX", -1, 1, 0, 2, Q("4.5 in")))
sketch10.addConstraint(Sketcher.Constraint("DistanceX", -1, 1, 1, 2, Q("6.75 in")))
sketch10.addConstraint(Sketcher.Constraint("DistanceY", 0, 2, -1, 1, Q("270.356283 mm")))
pad9 = body8.newObject("PartDesign::Pad", "Pad008")
pad9.Profile = sketch10
pad9.Length = Q("1 in")
body9 = doc.addObject("PartDesign::Body", "Body008")

sketch11 = body9.newObject("Sketcher::SketchObject", "Sketch010")
sketch11.AttachmentSupport = (doc.getObject("XY_Plane008"), [""])
sketch11.MapMode = "FlatFace"
sketch11.AttachmentOffset = App.Placement(V(0, 0, 1 * 25.4), App.Rotation())
sketch11.addGeometry(Part.LineSegment(V(-152.4, -111.606283, 0), V(-152.4, -178.281283, 0)), False)
sketch11.addGeometry(Part.LineSegment(V(-152.4, -178.281283, 0), V(152.4, -178.281283, 0)), False)
sketch11.addGeometry(Part.LineSegment(V(152.4, -178.281283, 0), V(152.4, -111.606283, 0)), False)
sketch11.addGeometry(Part.LineSegment(V(152.4, -111.606283, 0), V(-152.4, -111.606283, 0)), False)
sketch11.addConstraint(Sketcher.Constraint("Coincident", 0, 2, 1, 1))
sketch11.addConstraint(Sketcher.Constraint("Coincident", 1, 2, 2, 1))
sketch11.addConstraint(Sketcher.Constraint("Coincident", 2, 2, 3, 1))
sketch11.addConstraint(Sketcher.Constraint("Coincident", 3, 2, 0, 1))
sketch11.addConstraint(Sketcher.Constraint("Vertical", 0))
sketch11.addConstraint(Sketcher.Constraint("Horizontal", 1))
sketch11.addConstraint(Sketcher.Constraint("Vertical", 2))
sketch11.addConstraint(Sketcher.Constraint("Horizontal", 3))
sketch11.addConstraint(Sketcher.Constraint("DistanceX", 1, 1, 1, 2, Q("12 in")))
sketch11.addConstraint(Sketcher.Constraint("DistanceX", 0, 2, -1, 1, Q("6 in")))
sketch11.addConstraint(Sketcher.Constraint("DistanceY", 0, 2, 0, 1, Q("2.625 in")))
sketch11.addConstraint(Sketcher.Constraint("DistanceY", 0, 2, -1, 1, Q("178.281283 mm")))
pad10 = body9.newObject("PartDesign::Pad", "Pad009")
pad10.Profile = sketch11
pad10.Length = Q("1 in")
body10 = doc.addObject("PartDesign::Body", "Body009")

sketch12 = body10.newObject("Sketcher::SketchObject", "Sketch011")
sketch12.AttachmentSupport = (doc.getObject("XY_Plane009"), [""])
sketch12.MapMode = "FlatFace"
sketch12.AttachmentOffset = App.Placement(V(0, 0, 1 * 25.4), App.Rotation())
sketch12.addGeometry(Part.LineSegment(V(-151.893771, 34.443717, 0), V(-151.893771, -67.156283, 0)), False)
sketch12.addGeometry(Part.LineSegment(V(-151.893771, -67.156283, 0), V(-25.4, -67.156283, 0)), False)
sketch12.addGeometry(Part.LineSegment(V(-25.4, -67.156283, 0), V(-25.4, 34.443717, 0)), False)
sketch12.addGeometry(Part.LineSegment(V(-25.4, 34.443717, 0), V(-151.893771, 34.443717, 0)), False)
sketch12.addConstraint(Sketcher.Constraint("Coincident", 0, 2, 1, 1))
sketch12.addConstraint(Sketcher.Constraint("Coincident", 1, 2, 2, 1))
sketch12.addConstraint(Sketcher.Constraint("Coincident", 2, 2, 3, 1))
sketch12.addConstraint(Sketcher.Constraint("Coincident", 3, 2, 0, 1))
sketch12.addConstraint(Sketcher.Constraint("Vertical", 0))
sketch12.addConstraint(Sketcher.Constraint("Horizontal", 1))
sketch12.addConstraint(Sketcher.Constraint("Vertical", 2))
sketch12.addConstraint(Sketcher.Constraint("Horizontal", 3))
sketch12.addConstraint(Sketcher.Constraint("DistanceY", 0, 2, 0, 1, Q("4 in")))
sketch12.addConstraint(Sketcher.Constraint("DistanceX", 1, 2, -1, 1, Q("1 in")))
sketch12.addConstraint(Sketcher.Constraint("DistanceX", 1, 1, 1, 2, Q("126.493771 mm")))
sketch12.addConstraint(Sketcher.Constraint("DistanceY", 0, 2, -1, 1, Q("67.156283 mm")))
pad11 = body10.newObject("PartDesign::Pad", "Pad010")
pad11.Profile = sketch12
pad11.Length = Q("1 in")
body11 = doc.addObject("PartDesign::Body", "Body010")

sketch13 = body11.newObject("Sketcher::SketchObject", "Sketch012")
sketch13.AttachmentSupport = (doc.getObject("XY_Plane010"), [""])
sketch13.MapMode = "FlatFace"
sketch13.AttachmentOffset = App.Placement(V(0, 0, 1 * 25.4), App.Rotation())
sketch13.addGeometry(Part.LineSegment(V(25.4, 34.443717, 0), V(25.4, -67.246181, 0)), False)
sketch13.addGeometry(Part.LineSegment(V(25.4, -67.246181, 0), V(152.4, -67.246181, 0)), False)
sketch13.addGeometry(Part.LineSegment(V(152.4, -67.246181, 0), V(152.4, 34.443717, 0)), False)
sketch13.addGeometry(Part.LineSegment(V(152.4, 34.443717, 0), V(25.4, 34.443717, 0)), False)
sketch13.addConstraint(Sketcher.Constraint("Coincident", 0, 2, 1, 1))
sketch13.addConstraint(Sketcher.Constraint("Coincident", 1, 2, 2, 1))
sketch13.addConstraint(Sketcher.Constraint("Coincident", 2, 2, 3, 1))
sketch13.addConstraint(Sketcher.Constraint("Coincident", 3, 2, 0, 1))
sketch13.addConstraint(Sketcher.Constraint("Vertical", 0))
sketch13.addConstraint(Sketcher.Constraint("Horizontal", 1))
sketch13.addConstraint(Sketcher.Constraint("Vertical", 2))
sketch13.addConstraint(Sketcher.Constraint("Horizontal", 3))
sketch13.addConstraint(Sketcher.Constraint("DistanceX", 1, 1, 1, 2, Q("5 in")))
sketch13.addConstraint(Sketcher.Constraint("DistanceX", -1, 1, 0, 2, Q("1 in")))
sketch13.addConstraint(Sketcher.Constraint("DistanceY", 0, 2, 0, 1, Q("101.689898 mm")))
sketch13.addConstraint(Sketcher.Constraint("DistanceY", 0, 2, -1, 1, Q("67.246181 mm")))
pad12 = body11.newObject("PartDesign::Pad", "Pad011")
pad12.Profile = sketch13
pad12.Length = Q("1 in")
body12 = doc.addObject("PartDesign::Body", "Body011")

sketch14 = body12.newObject("Sketcher::SketchObject", "Sketch013")
sketch14.AttachmentSupport = (doc.getObject("XY_Plane011"), [""])
sketch14.MapMode = "FlatFace"
sketch14.AttachmentOffset = App.Placement(V(0, 0, 1 * 25.4), App.Rotation())
sketch14.addGeometry(Part.LineSegment(V(-152.4, -332.558032, 0), V(-100.460762, -269.647222, 0)), False)
sketch14.addGeometry(Part.LineSegment(V(-100.460762, -269.647222, 0), V(-176.660762, -206.736413, 0)), False)
sketch14.addGeometry(Part.LineSegment(V(-176.660762, -206.736413, 0), V(-228.6, -269.647222, 0)), False)
sketch14.addGeometry(Part.LineSegment(V(-228.6, -269.647222, 0), V(-152.4, -332.558032, 0)), False)
sketch14.addConstraint(Sketcher.Constraint("Coincident", 0, 2, 1, 1))
sketch14.addConstraint(Sketcher.Constraint("Coincident", 1, 2, 2, 1))
sketch14.addConstraint(Sketcher.Constraint("Coincident", 2, 2, 3, 1))
sketch14.addConstraint(Sketcher.Constraint("Coincident", 3, 2, 0, 1))
sketch14.addConstraint(Sketcher.Constraint("Perpendicular", 0, 1))
sketch14.addConstraint(Sketcher.Constraint("Perpendicular", 1, 2))
sketch14.addConstraint(Sketcher.Constraint("Perpendicular", 2, 3))
sketch14.addConstraint(Sketcher.Constraint("Horizontal", 0, 2, 2, 2))
sketch14.addConstraint(Sketcher.Constraint("DistanceX", 2, 2, -1, 1, Q("9 in")))
sketch14.addConstraint(Sketcher.Constraint("DistanceX", 3, 2, -1, 1, Q("6 in")))
sketch14.addConstraint(Sketcher.Constraint("Distance", 0, Q("81.580969 mm")))
sketch14.addConstraint(Sketcher.Constraint("DistanceY", 3, 2, -1, 1, Q("332.558032 mm")))
pad13 = body12.newObject("PartDesign::Pad", "Pad012")
pad13.Profile = sketch14
pad13.Length = Q("1 in")
body13 = doc.addObject("PartDesign::Body", "Body012")

sketch15 = body13.newObject("Sketcher::SketchObject", "Sketch014")
sketch15.AttachmentSupport = (doc.getObject("XY_Plane012"), [""])
sketch15.MapMode = "FlatFace"
sketch15.AttachmentOffset = App.Placement(V(0, 0, 1 * 25.4), App.Rotation())
sketch15.addGeometry(Part.LineSegment(V(-228.6, -244.956283, 0), V(-192.376515, -136.285828, 0)), False)
sketch15.addGeometry(Part.LineSegment(V(-192.376515, -136.285828, 0), V(-268.576515, -110.885828, 0)), False)
sketch15.addGeometry(Part.LineSegment(V(-268.576515, -110.885828, 0), V(-304.8, -219.556283, 0)), False)
sketch15.addGeometry(Part.LineSegment(V(-304.8, -219.556283, 0), V(-228.6, -244.956283, 0)), False)
sketch15.addConstraint(Sketcher.Constraint("Coincident", 0, 2, 1, 1))
sketch15.addConstraint(Sketcher.Constraint("Coincident", 1, 2, 2, 1))
sketch15.addConstraint(Sketcher.Constraint("Coincident", 2, 2, 3, 1))
sketch15.addConstraint(Sketcher.Constraint("Coincident", 3, 2, 0, 1))
sketch15.addConstraint(Sketcher.Constraint("Perpendicular", 0, 1))
sketch15.addConstraint(Sketcher.Constraint("Perpendicular", 1, 2))
sketch15.addConstraint(Sketcher.Constraint("Perpendicular", 2, 3))
sketch15.addConstraint(Sketcher.Constraint("DistanceX", 2, 2, -1, 1, Q("12 in")))
sketch15.addConstraint(Sketcher.Constraint("DistanceX", 3, 2, -1, 1, Q("9 in")))
sketch15.addConstraint(Sketcher.Constraint("DistanceY", 0, 2, 1, 2, Q("1 in")))
sketch15.addConstraint(Sketcher.Constraint("DistanceY", 0, 2, -1, 1, Q("136.285828 mm")))
sketch15.addConstraint(Sketcher.Constraint("Distance", 0, Q("114.548717 mm")))
pad14 = body13.newObject("PartDesign::Pad", "Pad013")
pad14.Profile = sketch15
pad14.Length = Q("1 in")
body14 = doc.addObject("PartDesign::Body", "Body013")

sketch16 = body14.newObject("Sketcher::SketchObject", "Sketch015")
sketch16.AttachmentSupport = (doc.getObject("XY_Plane013"), [""])
sketch16.MapMode = "FlatFace"
sketch16.AttachmentOffset = App.Placement(V(0, 0, 1 * 25.4), App.Rotation())
sketch16.addGeometry(Part.LineSegment(V(-266.7, -98.906283, 0), V(-167.773476, -22.808957, 0)), False)
sketch16.addGeometry(Part.LineSegment(V(-167.773476, -22.808957, 0), V(-231.273476, 59.741043, 0)), False)
sketch16.addGeometry(Part.LineSegment(V(-231.273476, 59.741043, 0), V(-330.2, -16.356283, 0)), False)
sketch16.addGeometry(Part.LineSegment(V(-330.2, -16.356283, 0), V(-266.7, -98.906283, 0)), False)
sketch16.addConstraint(Sketcher.Constraint("Coincident", 0, 2, 1, 1))
sketch16.addConstraint(Sketcher.Constraint("Coincident", 1, 2, 2, 1))
sketch16.addConstraint(Sketcher.Constraint("Coincident", 2, 2, 3, 1))
sketch16.addConstraint(Sketcher.Constraint("Coincident", 3, 2, 0, 1))
sketch16.addConstraint(Sketcher.Constraint("Perpendicular", 0, 1))
sketch16.addConstraint(Sketcher.Constraint("Perpendicular", 1, 2))
sketch16.addConstraint(Sketcher.Constraint("Perpendicular", 2, 3))
sketch16.addConstraint(Sketcher.Constraint("DistanceX", 2, 2, -1, 1, Q("13 in")))
sketch16.addConstraint(Sketcher.Constraint("DistanceX", 3, 2, -1, 1, Q("10.5 in")))
sketch16.addConstraint(Sketcher.Constraint("DistanceY", 0, 2, 1, 2, Q("3.25 in")))
sketch16.addConstraint(Sketcher.Constraint("Distance", 0, Q("124.808895 mm")))
sketch16.addConstraint(Sketcher.Constraint("DistanceY", 0, 2, -1, 1, Q("22.808957 mm")))
pad15 = body14.newObject("PartDesign::Pad", "Pad014")
pad15.Profile = sketch16
pad15.Length = Q("1 in")
body15 = doc.addObject("PartDesign::Body", "Body014")

sketch17 = body15.newObject("Sketcher::SketchObject", "Sketch016")
sketch17.AttachmentSupport = (doc.getObject("XY_Plane014"), [""])
sketch17.MapMode = "FlatFace"
sketch17.AttachmentOffset = App.Placement(V(0, 0, 1 * 25.4), App.Rotation())
sketch17.addGeometry(Part.LineSegment(V(184.855556, -206.856283, 0), V(114.3, -270.356283, 0)), False)
sketch17.addGeometry(Part.LineSegment(V(114.3, -270.356283, 0), V(171.45, -333.856283, 0)), False)
sketch17.addGeometry(Part.LineSegment(V(171.45, -333.856283, 0), V(242.005556, -270.356283, 0)), False)
sketch17.addGeometry(Part.LineSegment(V(242.005556, -270.356283, 0), V(184.855556, -206.856283, 0)), False)
sketch17.addConstraint(Sketcher.Constraint("Coincident", 0, 2, 1, 1))
sketch17.addConstraint(Sketcher.Constraint("Coincident", 1, 2, 2, 1))
sketch17.addConstraint(Sketcher.Constraint("Coincident", 2, 2, 3, 1))
sketch17.addConstraint(Sketcher.Constraint("Coincident", 3, 2, 0, 1))
sketch17.addConstraint(Sketcher.Constraint("Perpendicular", 0, 1))
sketch17.addConstraint(Sketcher.Constraint("Perpendicular", 1, 2))
sketch17.addConstraint(Sketcher.Constraint("Perpendicular", 2, 3))
sketch17.addConstraint(Sketcher.Constraint("Horizontal", 0, 2, 2, 2))
sketch17.addConstraint(Sketcher.Constraint("DistanceY", 1, 2, 3, 2, Q("5 in")))
sketch17.addConstraint(Sketcher.Constraint("DistanceX", -1, 1, 0, 2, Q("4.5 in")))
sketch17.addConstraint(Sketcher.Constraint("DistanceX", -1, 1, 1, 2, Q("6.75 in")))
sketch17.addConstraint(Sketcher.Constraint("DistanceY", 0, 2, -1, 1, Q("270.356283 mm")))
pad16 = body15.newObject("PartDesign::Pad", "Pad015")
pad16.Profile = sketch17
pad16.Length = Q("1 in")

doc.recompute()
